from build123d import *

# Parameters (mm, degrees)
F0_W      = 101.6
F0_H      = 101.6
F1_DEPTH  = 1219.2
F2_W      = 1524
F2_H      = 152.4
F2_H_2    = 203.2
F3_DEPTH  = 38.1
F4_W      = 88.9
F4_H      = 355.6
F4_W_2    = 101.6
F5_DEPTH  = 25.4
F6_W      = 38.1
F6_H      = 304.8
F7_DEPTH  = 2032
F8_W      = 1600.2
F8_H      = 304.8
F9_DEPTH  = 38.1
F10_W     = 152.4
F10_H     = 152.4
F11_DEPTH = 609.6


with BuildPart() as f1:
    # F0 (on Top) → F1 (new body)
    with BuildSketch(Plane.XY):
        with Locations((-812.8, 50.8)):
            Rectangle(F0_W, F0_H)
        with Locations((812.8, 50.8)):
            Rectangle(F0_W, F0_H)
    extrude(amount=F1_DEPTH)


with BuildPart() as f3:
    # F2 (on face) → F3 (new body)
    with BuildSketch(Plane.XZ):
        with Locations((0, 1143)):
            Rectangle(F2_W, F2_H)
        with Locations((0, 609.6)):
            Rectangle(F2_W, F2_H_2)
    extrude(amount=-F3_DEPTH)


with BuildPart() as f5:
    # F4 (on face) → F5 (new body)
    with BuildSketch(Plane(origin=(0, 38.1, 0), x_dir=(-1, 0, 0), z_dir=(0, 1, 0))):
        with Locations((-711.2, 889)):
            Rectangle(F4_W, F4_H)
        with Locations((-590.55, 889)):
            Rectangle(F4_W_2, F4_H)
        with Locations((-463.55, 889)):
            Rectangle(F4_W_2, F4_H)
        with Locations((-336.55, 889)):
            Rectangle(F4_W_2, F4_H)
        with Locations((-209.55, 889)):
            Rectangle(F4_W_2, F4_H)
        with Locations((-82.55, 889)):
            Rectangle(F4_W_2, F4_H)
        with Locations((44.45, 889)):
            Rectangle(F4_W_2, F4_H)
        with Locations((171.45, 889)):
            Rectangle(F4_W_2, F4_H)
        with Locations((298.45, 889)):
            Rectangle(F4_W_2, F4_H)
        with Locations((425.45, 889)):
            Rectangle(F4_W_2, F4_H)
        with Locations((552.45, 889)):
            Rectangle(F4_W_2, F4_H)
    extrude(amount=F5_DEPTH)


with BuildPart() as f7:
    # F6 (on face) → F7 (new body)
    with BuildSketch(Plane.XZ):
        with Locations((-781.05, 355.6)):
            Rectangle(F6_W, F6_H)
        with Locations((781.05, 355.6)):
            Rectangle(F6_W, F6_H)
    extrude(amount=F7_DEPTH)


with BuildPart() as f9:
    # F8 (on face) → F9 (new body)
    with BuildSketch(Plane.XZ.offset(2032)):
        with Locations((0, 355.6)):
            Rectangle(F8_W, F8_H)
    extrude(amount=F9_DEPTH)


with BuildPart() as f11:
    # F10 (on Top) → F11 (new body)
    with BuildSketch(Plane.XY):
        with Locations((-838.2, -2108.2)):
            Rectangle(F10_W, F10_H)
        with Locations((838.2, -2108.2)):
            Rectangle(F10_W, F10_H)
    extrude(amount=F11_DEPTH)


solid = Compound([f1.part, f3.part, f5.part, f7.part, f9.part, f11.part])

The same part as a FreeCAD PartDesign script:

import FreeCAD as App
import Part
import Sketcher
from FreeCAD import Vector
Q = App.Units.Quantity

doc = App.newDocument("Part")
body = doc.addObject("PartDesign::Body", "Body")
body.AllowCompound = True

# Sketch on XY plane
sketch1 = body.newObject("Sketcher::SketchObject", "Sketch")
sketch1.AttachmentSupport = (doc.getObject("XY_Plane"), [""])
sketch1.MapMode = "FlatFace"
sketch1.addGeometry([
    Part.LineSegment(Vector(-864, 102, 0), Vector(-864, 0, 0)),  # 0
    Part.LineSegment(Vector(-864, 0, 0), Vector(-762, 0, 0)),  # 1
    Part.LineSegment(Vector(-762, 0, 0), Vector(-762, 102, 0)),  # 2
    Part.LineSegment(Vector(-762, 102, 0), Vector(-864, 102, 0)),  # 3
    Part.LineSegment(Vector(762, 102, 0), Vector(762, 0, 0)),  # 4
    Part.LineSegment(Vector(762, 0, 0), Vector(864, 0, 0)),  # 5
    Part.LineSegment(Vector(864, 0, 0), Vector(864, 102, 0)),  # 6
    Part.LineSegment(Vector(864, 102, 0), Vector(762, 102, 0)),  # 7
], False)
sketch1.addConstraint([
    Sketcher.Constraint("Coincident", 0, 2, 1, 1),
    Sketcher.Constraint("Coincident", 1, 2, 2, 1),
    Sketcher.Constraint("Coincident", 2, 2, 3, 1),
    Sketcher.Constraint("Coincident", 3, 2, 0, 1),
    Sketcher.Constraint("Coincident", 4, 2, 5, 1),
    Sketcher.Constraint("Coincident", 5, 2, 6, 1),
    Sketcher.Constraint("Coincident", 6, 2, 7, 1),
    Sketcher.Constraint("Coincident", 7, 2, 4, 1),
    Sketcher.Constraint("Vertical", 0),
    Sketcher.Constraint("Horizontal", 1),
    Sketcher.Constraint("Vertical", 2),
    Sketcher.Constraint("Horizontal", 3),
    Sketcher.Constraint("Vertical", 4),
    Sketcher.Constraint("Horizontal", 5),
    Sketcher.Constraint("Vertical", 6),
    Sketcher.Constraint("Horizontal", 7),
    Sketcher.Constraint("Symmetric", 1, 2, 4, 2, -1, 1),
    Sketcher.Constraint("Symmetric", 0, 2, 5, 2, -2),
    Sketcher.Constraint("Horizontal", 3, 2, 6, 2),
    Sketcher.Constraint("Equal", 7, 0),
    Sketcher.Constraint("DistanceX", 1, 1, 1, 2, Q("4 in")),
    Sketcher.Constraint("DistanceX", 0, 2, -1, 1, Q("34 in")),
])
pad1 = body.newObject("PartDesign::Pad", "Pad")
pad1.Profile = sketch1
pad1.Length = Q("48 in")
body2 = doc.addObject("PartDesign::Body", "Body001")
body2.AllowCompound = True

# Sketch on XZ plane
sketch2 = body2.newObject("Sketcher::SketchObject", "Sketch001")
sketch2.AttachmentSupport = (doc.getObject("XZ_Plane001"), [""])
sketch2.MapMode = "FlatFace"
sketch2.addGeometry([
    Part.LineSegment(Vector(-762, 1219, 0), Vector(-762, 1067, 0)),  # 0
    Part.LineSegment(Vector(-762, 1067, 0), Vector(762, 1067, 0)),  # 1
    Part.LineSegment(Vector(762, 1067, 0), Vector(762, 1219, 0)),  # 2
    Part.LineSegment(Vector(762, 1219, 0), Vector(-762, 1219, 0)),  # 3
    Part.LineSegment(Vector(-762, 711, 0), Vector(-762, 508, 0)),  # 4
    Part.LineSegment(Vector(-762, 508, 0), Vector(762, 508, 0)),  # 5
    Part.LineSegment(Vector(762, 508, 0), Vector(762, 711, 0)),  # 6
    Part.LineSegment(Vector(762, 711, 0), Vector(-762, 711, 0)),  # 7
], False)
sketch2.addConstraint([
    Sketcher.Constraint("Coincident", 0, 2, 1, 1),
    Sketcher.Constraint("Coincident", 1, 2, 2, 1),
    Sketcher.Constraint("Coincident", 2, 2, 3, 1),
    Sketcher.Constraint("Coincident", 3, 2, 0, 1),
    Sketcher.Constraint("Coincident", 4, 2, 5, 1),
    Sketcher.Constraint("Coincident", 5, 2, 6, 1),
    Sketcher.Constraint("Coincident", 6, 2, 7, 1),
    Sketcher.Constraint("Coincident", 7, 2, 4, 1),
    Sketcher.Constraint("Vertical", 0),
    Sketcher.Constraint("Horizontal", 1),
    Sketcher.Constraint("Vertical", 2),
    Sketcher.Constraint("Horizontal", 3),
    Sketcher.Constraint("Vertical", 4),
    Sketcher.Constraint("Horizontal", 5),
    Sketcher.Constraint("Vertical", 6),
    Sketcher.Constraint("Horizontal", 7),
    Sketcher.Constraint("Vertical", 3, 2, 4, 2),
    Sketcher.Constraint("Vertical", 2, 2, 5, 2),
    Sketcher.Constraint("DistanceX", 1, 1, 1, 2, Q("60 in")),
    Sketcher.Constraint("DistanceY", 0, 2, 0, 1, Q("6 in")),
    Sketcher.Constraint("DistanceY", 4, 2, 4, 1, Q("8 in")),
    Sketcher.Constraint("DistanceX", 0, 2, -1, 1, Q("30 in")),
    Sketcher.Constraint("DistanceY", -1, 1, 0, 2, Q("42 in")),
    Sketcher.Constraint("DistanceY", -1, 1, 4, 2, Q("20 in")),
])
pad2 = body2.newObject("PartDesign::Pad", "Pad001")
pad2.Profile = sketch2
pad2.Length = Q("1.5 in")
pad2.Reversed = True
body3 = doc.addObject("PartDesign::Body", "Body002")
body3.AllowCompound = True

# Sketch on XZ plane
sketch3 = body3.newObject("Sketcher::SketchObject", "Sketch002")
sketch3.AttachmentSupport = (doc.getObject("XZ_Plane002"), [""])
sketch3.MapMode = "FlatFace"
sketch3.AttachmentOffset = App.Placement(Vector(0, 0, -1.5 * 25.4), App.Rotation())
sketch3.addGeometry([
    Part.LineSegment(Vector(756, 1067, 0), Vector(756, 711, 0)),  # 0
    Part.LineSegment(Vector(756, 711, 0), Vector(667, 711, 0)),  # 1
    Part.LineSegment(Vector(667, 711, 0), Vector(667, 1067, 0)),  # 2
    Part.LineSegment(Vector(667, 1067, 0), Vector(756, 1067, 0)),  # 3
    Part.LineSegment(Vector(641, 1067, 0), Vector(641, 711, 0)),  # 4
    Part.LineSegment(Vector(641, 711, 0), Vector(540, 711, 0)),  # 5
    Part.LineSegment(Vector(540, 711, 0), Vector(540, 1067, 0)),  # 6
    Part.LineSegment(Vector(540, 1067, 0), Vector(641, 1067, 0)),  # 7
    Part.LineSegment(Vector(514, 1067, 0), Vector(514, 711, 0)),  # 8
    Part.LineSegment(Vector(514, 711, 0), Vector(413, 711, 0)),  # 9
    Part.LineSegment(Vector(413, 711, 0), Vector(413, 1067, 0)),  # 10
    Part.LineSegment(Vector(413, 1067, 0), Vector(514, 1067, 0)),  # 11
    Part.LineSegment(Vector(387, 1067, 0), Vector(387, 711, 0)),  # 12
    Part.LineSegment(Vector(387, 711, 0), Vector(286, 711, 0)),  # 13
    Part.LineSegment(Vector(286, 711, 0), Vector(286, 1067, 0)),  # 14
    Part.LineSegment(Vector(286, 1067, 0), Vector(387, 1067, 0)),  # 15
    Part.LineSegment(Vector(260, 1067, 0), Vector(260, 711, 0)),  # 16
    Part.LineSegment(Vector(260, 711, 0), Vector(159, 711, 0)),  # 17
    Part.LineSegment(Vector(159, 711, 0), Vector(159, 1067, 0)),  # 18
    Part.LineSegment(Vector(159, 1067, 0), Vector(260, 1067, 0)),  # 19
    Part.LineSegment(Vector(133, 1067, 0), Vector(133, 711, 0)),  # 20
    Part.LineSegment(Vector(133, 711, 0), Vector(32, 711, 0)),  # 21
    Part.LineSegment(Vector(32, 711, 0), Vector(32, 1067, 0)),  # 22
    Part.LineSegment(Vector(32, 1067, 0), Vector(133, 1067, 0)),  # 23
    Part.LineSegment(Vector(6, 1067, 0), Vector(6, 711, 0)),  # 24
    Part.LineSegment(Vector(6, 711, 0), Vector(-95, 711, 0)),  # 25
    Part.LineSegment(Vector(-95, 711, 0), Vector(-95, 1067, 0)),  # 26
    Part.LineSegment(Vector(-95, 1067, 0), Vector(6, 1067, 0)),  # 27
    Part.LineSegment(Vector(-121, 1067, 0), Vector(-121, 711, 0)),  # 28
    Part.LineSegment(Vector(-121, 711, 0), Vector(-222, 711, 0)),  # 29
    Part.LineSegment(Vector(-222, 711, 0), Vector(-222, 1067, 0)),  # 30
    Part.LineSegment(Vector(-222, 1067, 0), Vector(-121, 1067, 0)),  # 31
    Part.LineSegment(Vector(-248, 1067, 0), Vector(-248, 711, 0)),  # 32
    Part.LineSegment(Vector(-248, 711, 0), Vector(-349, 711, 0)),  # 33
    Part.LineSegment(Vector(-349, 711, 0), Vector(-349, 1067, 0)),  # 34
    Part.LineSegment(Vector(-349, 1067, 0), Vector(-248, 1067, 0)),  # 35
    Part.LineSegment(Vector(-375, 1067, 0), Vector(-375, 711, 0)),  # 36
    Part.LineSegment(Vector(-375, 711, 0), Vector(-476, 711, 0)),  # 37
    Part.LineSegment(Vector(-476, 711, 0), Vector(-476, 1067, 0)),  # 38
    Part.LineSegment(Vector(-476, 1067, 0), Vector(-375, 1067, 0)),  # 39
    Part.LineSegment(Vector(-502, 1067, 0), Vector(-502, 711, 0)),  # 40
    Part.LineSegment(Vector(-502, 711, 0), Vector(-603, 711, 0)),  # 41
    Part.LineSegment(Vector(-603, 711, 0), Vector(-603, 1067, 0)),  # 42
    Part.LineSegment(Vector(-603, 1067, 0), Vector(-502, 1067, 0)),  # 43
], False)
sketch3.addConstraint([
    Sketcher.Constraint("Coincident", 0, 2, 1, 1),
    Sketcher.Constraint("Coincident", 1, 2, 2, 1),
    Sketcher.Constraint("Coincident", 2, 2, 3, 1),
    Sketcher.Constraint("Coincident", 3, 2, 0, 1),
    Sketcher.Constraint("Coincident", 4, 2, 5, 1),
    Sketcher.Constraint("Coincident", 5, 2, 6, 1),
    Sketcher.Constraint("Coincident", 6, 2, 7, 1),
    Sketcher.Constraint("Coincident", 7, 2, 4, 1),
    Sketcher.Constraint("Coincident", 8, 2, 9, 1),
    Sketcher.Constraint("Coincident", 9, 2, 10, 1),
    Sketcher.Constraint("Coincident", 10, 2, 11, 1),
    Sketcher.Constraint("Coincident", 11, 2, 8, 1),
    Sketcher.Constraint("Coincident", 12, 2, 13, 1),
    Sketcher.Constraint("Coincident", 13, 2, 14, 1),
    Sketcher.Constraint("Coincident", 14, 2, 15, 1),
    Sketcher.Constraint("Coincident", 15, 2, 12, 1),
    Sketcher.Constraint("Coincident", 16, 2, 17, 1),
    Sketcher.Constraint("Coincident", 17, 2, 18, 1),
    Sketcher.Constraint("Coincident", 18, 2, 19, 1),
    Sketcher.Constraint("Coincident", 19, 2, 16, 1),
    Sketcher.Constraint("Coincident", 20, 2, 21, 1),
    Sketcher.Constraint("Coincident", 21, 2, 22, 1),
    Sketcher.Constraint("Coincident", 22, 2, 23, 1),
    Sketcher.Constraint("Coincident", 23, 2, 20, 1),
    Sketcher.Constraint("Coincident", 24, 2, 25, 1),
    Sketcher.Constraint("Coincident", 25, 2, 26, 1),
    Sketcher.Constraint("Coincident", 26, 2, 27, 1),
    Sketcher.Constraint("Coincident", 27, 2, 24, 1),
    Sketcher.Constraint("Coincident", 28, 2, 29, 1),
    Sketcher.Constraint("Coincident", 29, 2, 30, 1),
    Sketcher.Constraint("Coincident", 30, 2, 31, 1),
    Sketcher.Constraint("Coincident", 31, 2, 28, 1),
    Sketcher.Constraint("Coincident", 32, 2, 33, 1),
    Sketcher.Constraint("Coincident", 33, 2, 34, 1),
    Sketcher.Constraint("Coincident", 34, 2, 35, 1),
    Sketcher.Constraint("Coincident", 35, 2, 32, 1),
    Sketcher.Constraint("Coincident", 36, 2, 37, 1),
    Sketcher.Constraint("Coincident", 37, 2, 38, 1),
    Sketcher.Constraint("Coincident", 38, 2, 39, 1),
    Sketcher.Constraint("Coincident", 39, 2, 36, 1),
    Sketcher.Constraint("Coincident", 40, 2, 41, 1),
    Sketcher.Constraint("Coincident", 41, 2, 42, 1),
    Sketcher.Constraint("Coincident", 42, 2, 43, 1),
    Sketcher.Constraint("Coincident", 43, 2, 40, 1),
    Sketcher.Constraint("Vertical", 0),
    Sketcher.Constraint("Horizontal", 1),
    Sketcher.Constraint("Vertical", 2),
    Sketcher.Constraint("Horizontal", 3),
    Sketcher.Constraint("Vertical", 4),
    Sketcher.Constraint("Horizontal", 5),
    Sketcher.Constraint("Vertical", 6),
    Sketcher.Constraint("Horizontal", 7),
    Sketcher.Constraint("Vertical", 8),
    Sketcher.Constraint("Horizontal", 9),
    Sketcher.Constraint("Vertical", 10),
    Sketcher.Constraint("Horizontal", 11),
    Sketcher.Constraint("Vertical", 12),
    Sketcher.Constraint("Horizontal", 13),
    Sketcher.Constraint("Vertical", 14),
    Sketcher.Constraint("Horizontal", 15),
    Sketcher.Constraint("Vertical", 16),
    Sketcher.Constraint("Horizontal", 17),
    Sketcher.Constraint("Vertical", 18),
    Sketcher.Constraint("Horizontal", 19),
    Sketcher.Constraint("Vertical", 20),
    Sketcher.Constraint("Horizontal", 21),
    Sketcher.Constraint("Vertical", 22),
    Sketcher.Constraint("Horizontal", 23),
    Sketcher.Constraint("Vertical", 24),
    Sketcher.Constraint("Horizontal", 25),
    Sketcher.Constraint("Vertical", 26),
    Sketcher.Constraint("Horizontal", 27),
    Sketcher.Constraint("Vertical", 28),
    Sketcher.Constraint("Horizontal", 29),
    Sketcher.Constraint("Vertical", 30),
    Sketcher.Constraint("Horizontal", 31),
    Sketcher.Constraint("Vertical", 32),
    Sketcher.Constraint("Horizontal", 33),
    Sketcher.Constraint("Vertical", 34),
    Sketcher.Constraint("Horizontal", 35),
    Sketcher.Constraint("Vertical", 36),
    Sketcher.Constraint("Horizontal", 37),
    Sketcher.Constraint("Vertical", 38),
    Sketcher.Constraint("Horizontal", 39),
    Sketcher.Constraint("Vertical", 40),
    Sketcher.Constraint("Horizontal", 41),
    Sketcher.Constraint("Vertical", 42),
    Sketcher.Constraint("Horizontal", 43),
    Sketcher.Constraint("Horizontal", 1, 2, 4, 2),
    Sketcher.Constraint("Horizontal", 3, 2, 6, 2),
    Sketcher.Constraint("Horizontal", 5, 2, 8, 2),
    Sketcher.Constraint("Horizontal", 7, 2, 10, 2),
    Sketcher.Constraint("Horizontal", 9, 2, 12, 2),
    Sketcher.Constraint("Horizontal", 11, 2, 14, 2),
    Sketcher.Constraint("Horizontal", 13, 2, 16, 2),
    Sketcher.Constraint("Horizontal", 15, 2, 18, 2),
    Sketcher.Constraint("Horizontal", 17, 2, 20, 2),
    Sketcher.Constraint("Horizontal", 19, 2, 22, 2),
    Sketcher.Constraint("Horizontal", 21, 2, 24, 2),
    Sketcher.Constraint("Horizontal", 23, 2, 26, 2),
    Sketcher.Constraint("Horizontal", 25, 2, 28, 2),
    Sketcher.Constraint("Horizontal", 27, 2, 30, 2),
    Sketcher.Constraint("Horizontal", 29, 2, 32, 2),
    Sketcher.Constraint("Horizontal", 31, 2, 34, 2),
    Sketcher.Constraint("Horizontal", 33, 2, 36, 2),
    Sketcher.Constraint("Horizontal", 35, 2, 38, 2),
    Sketcher.Constraint("Horizontal", 37, 2, 40, 2),
    Sketcher.Constraint("Horizontal", 39, 2, 42, 2),
    Sketcher.Constraint("Equal", 7, 9),
    Sketcher.Constraint("Equal", 11, 13),
    Sketcher.Constraint("Equal", 15, 17),
    Sketcher.Constraint("Equal", 19, 21),
    Sketcher.Constraint("Equal", 23, 25),
    Sketcher.Constraint("Equal", 27, 29),
    Sketcher.Constraint("Equal", 31, 33),
    Sketcher.Constraint("Equal", 35, 37),
    Sketcher.Constraint("Equal", 39, 41),
    Sketcher.Constraint("DistanceX", 5, 2, 5, 1, Q("4 in")),
    Sketcher.Constraint("DistanceY", 0, 2, 0, 1, Q("14 in")),
    Sketcher.Constraint("DistanceX", 1, 2, 1, 1, Q("3.5 in")),
    Sketcher.Constraint("DistanceY", -1, 1, 0, 2, Q("28 in")),
    Sketcher.Constraint("DistanceX", 4, 2, 1, 2, Q("1 in")),
    Sketcher.Constraint("DistanceX", 8, 2, 5, 2, Q("1 in")),
    Sketcher.Constraint("DistanceX", 12, 2, 9, 2, Q("1 in")),
    Sketcher.Constraint("DistanceX", 16, 2, 13, 2, Q("1 in")),
    Sketcher.Constraint("DistanceX", 20, 2, 17, 2, Q("1 in")),
    Sketcher.Constraint("DistanceX", 24, 2, 21, 2, Q("1 in")),
    Sketcher.Constraint("DistanceX", 28, 2, 25, 2, Q("1 in")),
    Sketcher.Constraint("DistanceX", 32, 2, 29, 2, Q("1 in")),
    Sketcher.Constraint("DistanceX", 36, 2, 33, 2, Q("1 in")),
    Sketcher.Constraint("DistanceX", 40, 2, 37, 2, Q("1 in")),
    Sketcher.Constraint("DistanceX", -1, 1, 0, 2, Q("29.75 in")),
])
pad3 = body3.newObject("PartDesign::Pad", "Pad002")
pad3.Profile = sketch3
pad3.Length = Q("1 in")
pad3.Reversed = True
body4 = doc.addObject("PartDesign::Body", "Body003")
body4.AllowCompound = True

# Sketch on XZ plane
sketch4 = body4.newObject("Sketcher::SketchObject", "Sketch003")
sketch4.AttachmentSupport = (doc.getObject("XZ_Plane003"), [""])
sketch4.MapMode = "FlatFace"
sketch4.addGeometry([
    Part.LineSegment(Vector(-800, 508, 0), Vector(-800, 203, 0)),  # 0
    Part.LineSegment(Vector(-800, 203, 0), Vector(-762, 203, 0)),  # 1
    Part.LineSegment(Vector(-762, 203, 0), Vector(-762, 508, 0)),  # 2
    Part.LineSegment(Vector(-762, 508, 0), Vector(-800, 508, 0)),  # 3
    Part.LineSegment(Vector(762, 508, 0), Vector(762, 203, 0)),  # 4
    Part.LineSegment(Vector(762, 203, 0), Vector(800, 203, 0)),  # 5
    Part.LineSegment(Vector(800, 203, 0), Vector(800, 508, 0)),  # 6
    Part.LineSegment(Vector(800, 508, 0), Vector(762, 508, 0)),  # 7
], False)
sketch4.addConstraint([
    Sketcher.Constraint("Coincident", 0, 2, 1, 1),
    Sketcher.Constraint("Coincident", 1, 2, 2, 1),
    Sketcher.Constraint("Coincident", 2, 2, 3, 1),
    Sketcher.Constraint("Coincident", 3, 2, 0, 1),
    Sketcher.Constraint("Coincident", 4, 2, 5, 1),
    Sketcher.Constraint("Coincident", 5, 2, 6, 1),
    Sketcher.Constraint("Coincident", 6, 2, 7, 1),
    Sketcher.Constraint("Coincident", 7, 2, 4, 1),
    Sketcher.Constraint("Vertical", 0),
    Sketcher.Constraint("Horizontal", 1),
    Sketcher.Constraint("Vertical", 2),
    Sketcher.Constraint("Horizontal", 3),
    Sketcher.Constraint("Vertical", 4),
    Sketcher.Constraint("Horizontal", 5),
    Sketcher.Constraint("Vertical", 6),
    Sketcher.Constraint("Horizontal", 7),
    Sketcher.Constraint("Symmetric", 1, 2, 4, 2, -2),
    Sketcher.Constraint("Symmetric", 3, 2, 6, 2, -2),
    Sketcher.Constraint("DistanceY", 0, 2, 0, 1, Q("12 in")),
    Sketcher.Constraint("DistanceX", 1, 1, 1, 2, Q("1.5 in")),
    Sketcher.Constraint("DistanceY", -1, 1, 0, 2, Q("8 in")),
    Sketcher.Constraint("DistanceX", 1, 2, -1, 1, Q("30 in")),
])
pad4 = body4.newObject("PartDesign::Pad", "Pad003")
pad4.Profile = sketch4
pad4.Length = Q("80 in")
body5 = doc.addObject("PartDesign::Body", "Body004")

# Sketch on XZ plane
sketch5 = body5.newObject("Sketcher::SketchObject", "Sketch004")
sketch5.AttachmentSupport = (doc.getObject("XZ_Plane004"), [""])
sketch5.MapMode = "FlatFace"
sketch5.AttachmentOffset = App.Placement(Vector(0, 0, 80 * 25.4), App.Rotation())
sketch5.addGeometry([
    Part.LineSegment(Vector(-800, 508, 0), Vector(-800, 203, 0)),
    Part.LineSegment(Vector(-800, 203, 0), Vector(800, 203, 0)),
    Part.LineSegment(Vector(800, 203, 0), Vector(800, 508, 0)),
    Part.LineSegment(Vector(800, 508, 0), Vector(-800, 508, 0)),
], False)
sketch5.addConstraint([
    Sketcher.Constraint("Coincident", 0, 2, 1, 1),
    Sketcher.Constraint("Coincident", 1, 2, 2, 1),
    Sketcher.Constraint("Coincident", 2, 2, 3, 1),
    Sketcher.Constraint("Coincident", 3, 2, 0, 1),
    Sketcher.Constraint("Vertical", 0),
    Sketcher.Constraint("Horizontal", 1),
    Sketcher.Constraint("Vertical", 2),
    Sketcher.Constraint("Horizontal", 3),
    Sketcher.Constraint("DistanceX", 1, 1, 1, 2, Q("63 in")),
    Sketcher.Constraint("DistanceY", 0, 2, 0, 1, Q("12 in")),
    Sketcher.Constraint("DistanceY", -1, 1, 0, 2, Q("8 in")),
    Sketcher.Constraint("DistanceX", 0, 2, -1, 1, Q("31.5 in")),
])
pad5 = body5.newObject("PartDesign::Pad", "Pad004")
pad5.Profile = sketch5
pad5.Length = Q("1.5 in")
body6 = doc.addObject("PartDesign::Body", "Body005")
body6.AllowCompound = True

# Sketch on XY plane
sketch6 = body6.newObject("Sketcher::SketchObject", "Sketch005")
sketch6.AttachmentSupport = (doc.getObject("XY_Plane005"), [""])
sketch6.MapMode = "FlatFace"
sketch6.addGeometry([
    Part.LineSegment(Vector(-914, -2032, 0), Vector(-914, -2184, 0)),  # 0
    Part.LineSegment(Vector(-914, -2184, 0), Vector(-762, -2184, 0)),  # 1
    Part.LineSegment(Vector(-762, -2184, 0), Vector(-762, -2032, 0)),  # 2
    Part.LineSegment(Vector(-762, -2032, 0), Vector(-914, -2032, 0)),  # 3
    Part.LineSegment(Vector(762, -2032, 0), Vector(762, -2184, 0)),  # 4
    Part.LineSegment(Vector(762, -2184, 0), Vector(914, -2184, 0)),  # 5
    Part.LineSegment(Vector(914, -2184, 0), Vector(914, -2032, 0)),  # 6
    Part.LineSegment(Vector(914, -2032, 0), Vector(762, -2032, 0)),  # 7
], False)
sketch6.addConstraint([
    Sketcher.Constraint("Coincident", 0, 2, 1, 1),
    Sketcher.Constraint("Coincident", 1, 2, 2, 1),
    Sketcher.Constraint("Coincident", 2, 2, 3, 1),
    Sketcher.Constraint("Coincident", 3, 2, 0, 1),
    Sketcher.Constraint("Coincident", 4, 2, 5, 1),
    Sketcher.Constraint("Coincident", 5, 2, 6, 1),
    Sketcher.Constraint("Coincident", 6, 2, 7, 1),
    Sketcher.Constraint("Coincident", 7, 2, 4, 1),
    Sketcher.Constraint("Vertical", 0),
    Sketcher.Constraint("Horizontal", 1),
    Sketcher.Constraint("Vertical", 2),
    Sketcher.Constraint("Horizontal", 3),
    Sketcher.Constraint("Vertical", 4),
    Sketcher.Constraint("Horizontal", 5),
    Sketcher.Constraint("Vertical", 6),
    Sketcher.Constraint("Horizontal", 7),
    Sketcher.Constraint("Symmetric", 1, 2, 4, 2, -2),
    Sketcher.Constraint("Symmetric", 3, 2, 6, 2, -2),
    Sketcher.Constraint("Equal", 7, 0),
    Sketcher.Constraint("DistanceX", 1, 1, 1, 2, Q("6 in")),
    Sketcher.Constraint("DistanceX", 0, 2, -1, 1, Q("36 in")),
    Sketcher.Constraint("DistanceY", 0, 2, -1, 1, Q("86 in")),
])
pad6 = body6.newObject("PartDesign::Pad", "Pad005")
pad6.Profile = sketch6
pad6.Length = Q("24 in")

doc.recompute()
